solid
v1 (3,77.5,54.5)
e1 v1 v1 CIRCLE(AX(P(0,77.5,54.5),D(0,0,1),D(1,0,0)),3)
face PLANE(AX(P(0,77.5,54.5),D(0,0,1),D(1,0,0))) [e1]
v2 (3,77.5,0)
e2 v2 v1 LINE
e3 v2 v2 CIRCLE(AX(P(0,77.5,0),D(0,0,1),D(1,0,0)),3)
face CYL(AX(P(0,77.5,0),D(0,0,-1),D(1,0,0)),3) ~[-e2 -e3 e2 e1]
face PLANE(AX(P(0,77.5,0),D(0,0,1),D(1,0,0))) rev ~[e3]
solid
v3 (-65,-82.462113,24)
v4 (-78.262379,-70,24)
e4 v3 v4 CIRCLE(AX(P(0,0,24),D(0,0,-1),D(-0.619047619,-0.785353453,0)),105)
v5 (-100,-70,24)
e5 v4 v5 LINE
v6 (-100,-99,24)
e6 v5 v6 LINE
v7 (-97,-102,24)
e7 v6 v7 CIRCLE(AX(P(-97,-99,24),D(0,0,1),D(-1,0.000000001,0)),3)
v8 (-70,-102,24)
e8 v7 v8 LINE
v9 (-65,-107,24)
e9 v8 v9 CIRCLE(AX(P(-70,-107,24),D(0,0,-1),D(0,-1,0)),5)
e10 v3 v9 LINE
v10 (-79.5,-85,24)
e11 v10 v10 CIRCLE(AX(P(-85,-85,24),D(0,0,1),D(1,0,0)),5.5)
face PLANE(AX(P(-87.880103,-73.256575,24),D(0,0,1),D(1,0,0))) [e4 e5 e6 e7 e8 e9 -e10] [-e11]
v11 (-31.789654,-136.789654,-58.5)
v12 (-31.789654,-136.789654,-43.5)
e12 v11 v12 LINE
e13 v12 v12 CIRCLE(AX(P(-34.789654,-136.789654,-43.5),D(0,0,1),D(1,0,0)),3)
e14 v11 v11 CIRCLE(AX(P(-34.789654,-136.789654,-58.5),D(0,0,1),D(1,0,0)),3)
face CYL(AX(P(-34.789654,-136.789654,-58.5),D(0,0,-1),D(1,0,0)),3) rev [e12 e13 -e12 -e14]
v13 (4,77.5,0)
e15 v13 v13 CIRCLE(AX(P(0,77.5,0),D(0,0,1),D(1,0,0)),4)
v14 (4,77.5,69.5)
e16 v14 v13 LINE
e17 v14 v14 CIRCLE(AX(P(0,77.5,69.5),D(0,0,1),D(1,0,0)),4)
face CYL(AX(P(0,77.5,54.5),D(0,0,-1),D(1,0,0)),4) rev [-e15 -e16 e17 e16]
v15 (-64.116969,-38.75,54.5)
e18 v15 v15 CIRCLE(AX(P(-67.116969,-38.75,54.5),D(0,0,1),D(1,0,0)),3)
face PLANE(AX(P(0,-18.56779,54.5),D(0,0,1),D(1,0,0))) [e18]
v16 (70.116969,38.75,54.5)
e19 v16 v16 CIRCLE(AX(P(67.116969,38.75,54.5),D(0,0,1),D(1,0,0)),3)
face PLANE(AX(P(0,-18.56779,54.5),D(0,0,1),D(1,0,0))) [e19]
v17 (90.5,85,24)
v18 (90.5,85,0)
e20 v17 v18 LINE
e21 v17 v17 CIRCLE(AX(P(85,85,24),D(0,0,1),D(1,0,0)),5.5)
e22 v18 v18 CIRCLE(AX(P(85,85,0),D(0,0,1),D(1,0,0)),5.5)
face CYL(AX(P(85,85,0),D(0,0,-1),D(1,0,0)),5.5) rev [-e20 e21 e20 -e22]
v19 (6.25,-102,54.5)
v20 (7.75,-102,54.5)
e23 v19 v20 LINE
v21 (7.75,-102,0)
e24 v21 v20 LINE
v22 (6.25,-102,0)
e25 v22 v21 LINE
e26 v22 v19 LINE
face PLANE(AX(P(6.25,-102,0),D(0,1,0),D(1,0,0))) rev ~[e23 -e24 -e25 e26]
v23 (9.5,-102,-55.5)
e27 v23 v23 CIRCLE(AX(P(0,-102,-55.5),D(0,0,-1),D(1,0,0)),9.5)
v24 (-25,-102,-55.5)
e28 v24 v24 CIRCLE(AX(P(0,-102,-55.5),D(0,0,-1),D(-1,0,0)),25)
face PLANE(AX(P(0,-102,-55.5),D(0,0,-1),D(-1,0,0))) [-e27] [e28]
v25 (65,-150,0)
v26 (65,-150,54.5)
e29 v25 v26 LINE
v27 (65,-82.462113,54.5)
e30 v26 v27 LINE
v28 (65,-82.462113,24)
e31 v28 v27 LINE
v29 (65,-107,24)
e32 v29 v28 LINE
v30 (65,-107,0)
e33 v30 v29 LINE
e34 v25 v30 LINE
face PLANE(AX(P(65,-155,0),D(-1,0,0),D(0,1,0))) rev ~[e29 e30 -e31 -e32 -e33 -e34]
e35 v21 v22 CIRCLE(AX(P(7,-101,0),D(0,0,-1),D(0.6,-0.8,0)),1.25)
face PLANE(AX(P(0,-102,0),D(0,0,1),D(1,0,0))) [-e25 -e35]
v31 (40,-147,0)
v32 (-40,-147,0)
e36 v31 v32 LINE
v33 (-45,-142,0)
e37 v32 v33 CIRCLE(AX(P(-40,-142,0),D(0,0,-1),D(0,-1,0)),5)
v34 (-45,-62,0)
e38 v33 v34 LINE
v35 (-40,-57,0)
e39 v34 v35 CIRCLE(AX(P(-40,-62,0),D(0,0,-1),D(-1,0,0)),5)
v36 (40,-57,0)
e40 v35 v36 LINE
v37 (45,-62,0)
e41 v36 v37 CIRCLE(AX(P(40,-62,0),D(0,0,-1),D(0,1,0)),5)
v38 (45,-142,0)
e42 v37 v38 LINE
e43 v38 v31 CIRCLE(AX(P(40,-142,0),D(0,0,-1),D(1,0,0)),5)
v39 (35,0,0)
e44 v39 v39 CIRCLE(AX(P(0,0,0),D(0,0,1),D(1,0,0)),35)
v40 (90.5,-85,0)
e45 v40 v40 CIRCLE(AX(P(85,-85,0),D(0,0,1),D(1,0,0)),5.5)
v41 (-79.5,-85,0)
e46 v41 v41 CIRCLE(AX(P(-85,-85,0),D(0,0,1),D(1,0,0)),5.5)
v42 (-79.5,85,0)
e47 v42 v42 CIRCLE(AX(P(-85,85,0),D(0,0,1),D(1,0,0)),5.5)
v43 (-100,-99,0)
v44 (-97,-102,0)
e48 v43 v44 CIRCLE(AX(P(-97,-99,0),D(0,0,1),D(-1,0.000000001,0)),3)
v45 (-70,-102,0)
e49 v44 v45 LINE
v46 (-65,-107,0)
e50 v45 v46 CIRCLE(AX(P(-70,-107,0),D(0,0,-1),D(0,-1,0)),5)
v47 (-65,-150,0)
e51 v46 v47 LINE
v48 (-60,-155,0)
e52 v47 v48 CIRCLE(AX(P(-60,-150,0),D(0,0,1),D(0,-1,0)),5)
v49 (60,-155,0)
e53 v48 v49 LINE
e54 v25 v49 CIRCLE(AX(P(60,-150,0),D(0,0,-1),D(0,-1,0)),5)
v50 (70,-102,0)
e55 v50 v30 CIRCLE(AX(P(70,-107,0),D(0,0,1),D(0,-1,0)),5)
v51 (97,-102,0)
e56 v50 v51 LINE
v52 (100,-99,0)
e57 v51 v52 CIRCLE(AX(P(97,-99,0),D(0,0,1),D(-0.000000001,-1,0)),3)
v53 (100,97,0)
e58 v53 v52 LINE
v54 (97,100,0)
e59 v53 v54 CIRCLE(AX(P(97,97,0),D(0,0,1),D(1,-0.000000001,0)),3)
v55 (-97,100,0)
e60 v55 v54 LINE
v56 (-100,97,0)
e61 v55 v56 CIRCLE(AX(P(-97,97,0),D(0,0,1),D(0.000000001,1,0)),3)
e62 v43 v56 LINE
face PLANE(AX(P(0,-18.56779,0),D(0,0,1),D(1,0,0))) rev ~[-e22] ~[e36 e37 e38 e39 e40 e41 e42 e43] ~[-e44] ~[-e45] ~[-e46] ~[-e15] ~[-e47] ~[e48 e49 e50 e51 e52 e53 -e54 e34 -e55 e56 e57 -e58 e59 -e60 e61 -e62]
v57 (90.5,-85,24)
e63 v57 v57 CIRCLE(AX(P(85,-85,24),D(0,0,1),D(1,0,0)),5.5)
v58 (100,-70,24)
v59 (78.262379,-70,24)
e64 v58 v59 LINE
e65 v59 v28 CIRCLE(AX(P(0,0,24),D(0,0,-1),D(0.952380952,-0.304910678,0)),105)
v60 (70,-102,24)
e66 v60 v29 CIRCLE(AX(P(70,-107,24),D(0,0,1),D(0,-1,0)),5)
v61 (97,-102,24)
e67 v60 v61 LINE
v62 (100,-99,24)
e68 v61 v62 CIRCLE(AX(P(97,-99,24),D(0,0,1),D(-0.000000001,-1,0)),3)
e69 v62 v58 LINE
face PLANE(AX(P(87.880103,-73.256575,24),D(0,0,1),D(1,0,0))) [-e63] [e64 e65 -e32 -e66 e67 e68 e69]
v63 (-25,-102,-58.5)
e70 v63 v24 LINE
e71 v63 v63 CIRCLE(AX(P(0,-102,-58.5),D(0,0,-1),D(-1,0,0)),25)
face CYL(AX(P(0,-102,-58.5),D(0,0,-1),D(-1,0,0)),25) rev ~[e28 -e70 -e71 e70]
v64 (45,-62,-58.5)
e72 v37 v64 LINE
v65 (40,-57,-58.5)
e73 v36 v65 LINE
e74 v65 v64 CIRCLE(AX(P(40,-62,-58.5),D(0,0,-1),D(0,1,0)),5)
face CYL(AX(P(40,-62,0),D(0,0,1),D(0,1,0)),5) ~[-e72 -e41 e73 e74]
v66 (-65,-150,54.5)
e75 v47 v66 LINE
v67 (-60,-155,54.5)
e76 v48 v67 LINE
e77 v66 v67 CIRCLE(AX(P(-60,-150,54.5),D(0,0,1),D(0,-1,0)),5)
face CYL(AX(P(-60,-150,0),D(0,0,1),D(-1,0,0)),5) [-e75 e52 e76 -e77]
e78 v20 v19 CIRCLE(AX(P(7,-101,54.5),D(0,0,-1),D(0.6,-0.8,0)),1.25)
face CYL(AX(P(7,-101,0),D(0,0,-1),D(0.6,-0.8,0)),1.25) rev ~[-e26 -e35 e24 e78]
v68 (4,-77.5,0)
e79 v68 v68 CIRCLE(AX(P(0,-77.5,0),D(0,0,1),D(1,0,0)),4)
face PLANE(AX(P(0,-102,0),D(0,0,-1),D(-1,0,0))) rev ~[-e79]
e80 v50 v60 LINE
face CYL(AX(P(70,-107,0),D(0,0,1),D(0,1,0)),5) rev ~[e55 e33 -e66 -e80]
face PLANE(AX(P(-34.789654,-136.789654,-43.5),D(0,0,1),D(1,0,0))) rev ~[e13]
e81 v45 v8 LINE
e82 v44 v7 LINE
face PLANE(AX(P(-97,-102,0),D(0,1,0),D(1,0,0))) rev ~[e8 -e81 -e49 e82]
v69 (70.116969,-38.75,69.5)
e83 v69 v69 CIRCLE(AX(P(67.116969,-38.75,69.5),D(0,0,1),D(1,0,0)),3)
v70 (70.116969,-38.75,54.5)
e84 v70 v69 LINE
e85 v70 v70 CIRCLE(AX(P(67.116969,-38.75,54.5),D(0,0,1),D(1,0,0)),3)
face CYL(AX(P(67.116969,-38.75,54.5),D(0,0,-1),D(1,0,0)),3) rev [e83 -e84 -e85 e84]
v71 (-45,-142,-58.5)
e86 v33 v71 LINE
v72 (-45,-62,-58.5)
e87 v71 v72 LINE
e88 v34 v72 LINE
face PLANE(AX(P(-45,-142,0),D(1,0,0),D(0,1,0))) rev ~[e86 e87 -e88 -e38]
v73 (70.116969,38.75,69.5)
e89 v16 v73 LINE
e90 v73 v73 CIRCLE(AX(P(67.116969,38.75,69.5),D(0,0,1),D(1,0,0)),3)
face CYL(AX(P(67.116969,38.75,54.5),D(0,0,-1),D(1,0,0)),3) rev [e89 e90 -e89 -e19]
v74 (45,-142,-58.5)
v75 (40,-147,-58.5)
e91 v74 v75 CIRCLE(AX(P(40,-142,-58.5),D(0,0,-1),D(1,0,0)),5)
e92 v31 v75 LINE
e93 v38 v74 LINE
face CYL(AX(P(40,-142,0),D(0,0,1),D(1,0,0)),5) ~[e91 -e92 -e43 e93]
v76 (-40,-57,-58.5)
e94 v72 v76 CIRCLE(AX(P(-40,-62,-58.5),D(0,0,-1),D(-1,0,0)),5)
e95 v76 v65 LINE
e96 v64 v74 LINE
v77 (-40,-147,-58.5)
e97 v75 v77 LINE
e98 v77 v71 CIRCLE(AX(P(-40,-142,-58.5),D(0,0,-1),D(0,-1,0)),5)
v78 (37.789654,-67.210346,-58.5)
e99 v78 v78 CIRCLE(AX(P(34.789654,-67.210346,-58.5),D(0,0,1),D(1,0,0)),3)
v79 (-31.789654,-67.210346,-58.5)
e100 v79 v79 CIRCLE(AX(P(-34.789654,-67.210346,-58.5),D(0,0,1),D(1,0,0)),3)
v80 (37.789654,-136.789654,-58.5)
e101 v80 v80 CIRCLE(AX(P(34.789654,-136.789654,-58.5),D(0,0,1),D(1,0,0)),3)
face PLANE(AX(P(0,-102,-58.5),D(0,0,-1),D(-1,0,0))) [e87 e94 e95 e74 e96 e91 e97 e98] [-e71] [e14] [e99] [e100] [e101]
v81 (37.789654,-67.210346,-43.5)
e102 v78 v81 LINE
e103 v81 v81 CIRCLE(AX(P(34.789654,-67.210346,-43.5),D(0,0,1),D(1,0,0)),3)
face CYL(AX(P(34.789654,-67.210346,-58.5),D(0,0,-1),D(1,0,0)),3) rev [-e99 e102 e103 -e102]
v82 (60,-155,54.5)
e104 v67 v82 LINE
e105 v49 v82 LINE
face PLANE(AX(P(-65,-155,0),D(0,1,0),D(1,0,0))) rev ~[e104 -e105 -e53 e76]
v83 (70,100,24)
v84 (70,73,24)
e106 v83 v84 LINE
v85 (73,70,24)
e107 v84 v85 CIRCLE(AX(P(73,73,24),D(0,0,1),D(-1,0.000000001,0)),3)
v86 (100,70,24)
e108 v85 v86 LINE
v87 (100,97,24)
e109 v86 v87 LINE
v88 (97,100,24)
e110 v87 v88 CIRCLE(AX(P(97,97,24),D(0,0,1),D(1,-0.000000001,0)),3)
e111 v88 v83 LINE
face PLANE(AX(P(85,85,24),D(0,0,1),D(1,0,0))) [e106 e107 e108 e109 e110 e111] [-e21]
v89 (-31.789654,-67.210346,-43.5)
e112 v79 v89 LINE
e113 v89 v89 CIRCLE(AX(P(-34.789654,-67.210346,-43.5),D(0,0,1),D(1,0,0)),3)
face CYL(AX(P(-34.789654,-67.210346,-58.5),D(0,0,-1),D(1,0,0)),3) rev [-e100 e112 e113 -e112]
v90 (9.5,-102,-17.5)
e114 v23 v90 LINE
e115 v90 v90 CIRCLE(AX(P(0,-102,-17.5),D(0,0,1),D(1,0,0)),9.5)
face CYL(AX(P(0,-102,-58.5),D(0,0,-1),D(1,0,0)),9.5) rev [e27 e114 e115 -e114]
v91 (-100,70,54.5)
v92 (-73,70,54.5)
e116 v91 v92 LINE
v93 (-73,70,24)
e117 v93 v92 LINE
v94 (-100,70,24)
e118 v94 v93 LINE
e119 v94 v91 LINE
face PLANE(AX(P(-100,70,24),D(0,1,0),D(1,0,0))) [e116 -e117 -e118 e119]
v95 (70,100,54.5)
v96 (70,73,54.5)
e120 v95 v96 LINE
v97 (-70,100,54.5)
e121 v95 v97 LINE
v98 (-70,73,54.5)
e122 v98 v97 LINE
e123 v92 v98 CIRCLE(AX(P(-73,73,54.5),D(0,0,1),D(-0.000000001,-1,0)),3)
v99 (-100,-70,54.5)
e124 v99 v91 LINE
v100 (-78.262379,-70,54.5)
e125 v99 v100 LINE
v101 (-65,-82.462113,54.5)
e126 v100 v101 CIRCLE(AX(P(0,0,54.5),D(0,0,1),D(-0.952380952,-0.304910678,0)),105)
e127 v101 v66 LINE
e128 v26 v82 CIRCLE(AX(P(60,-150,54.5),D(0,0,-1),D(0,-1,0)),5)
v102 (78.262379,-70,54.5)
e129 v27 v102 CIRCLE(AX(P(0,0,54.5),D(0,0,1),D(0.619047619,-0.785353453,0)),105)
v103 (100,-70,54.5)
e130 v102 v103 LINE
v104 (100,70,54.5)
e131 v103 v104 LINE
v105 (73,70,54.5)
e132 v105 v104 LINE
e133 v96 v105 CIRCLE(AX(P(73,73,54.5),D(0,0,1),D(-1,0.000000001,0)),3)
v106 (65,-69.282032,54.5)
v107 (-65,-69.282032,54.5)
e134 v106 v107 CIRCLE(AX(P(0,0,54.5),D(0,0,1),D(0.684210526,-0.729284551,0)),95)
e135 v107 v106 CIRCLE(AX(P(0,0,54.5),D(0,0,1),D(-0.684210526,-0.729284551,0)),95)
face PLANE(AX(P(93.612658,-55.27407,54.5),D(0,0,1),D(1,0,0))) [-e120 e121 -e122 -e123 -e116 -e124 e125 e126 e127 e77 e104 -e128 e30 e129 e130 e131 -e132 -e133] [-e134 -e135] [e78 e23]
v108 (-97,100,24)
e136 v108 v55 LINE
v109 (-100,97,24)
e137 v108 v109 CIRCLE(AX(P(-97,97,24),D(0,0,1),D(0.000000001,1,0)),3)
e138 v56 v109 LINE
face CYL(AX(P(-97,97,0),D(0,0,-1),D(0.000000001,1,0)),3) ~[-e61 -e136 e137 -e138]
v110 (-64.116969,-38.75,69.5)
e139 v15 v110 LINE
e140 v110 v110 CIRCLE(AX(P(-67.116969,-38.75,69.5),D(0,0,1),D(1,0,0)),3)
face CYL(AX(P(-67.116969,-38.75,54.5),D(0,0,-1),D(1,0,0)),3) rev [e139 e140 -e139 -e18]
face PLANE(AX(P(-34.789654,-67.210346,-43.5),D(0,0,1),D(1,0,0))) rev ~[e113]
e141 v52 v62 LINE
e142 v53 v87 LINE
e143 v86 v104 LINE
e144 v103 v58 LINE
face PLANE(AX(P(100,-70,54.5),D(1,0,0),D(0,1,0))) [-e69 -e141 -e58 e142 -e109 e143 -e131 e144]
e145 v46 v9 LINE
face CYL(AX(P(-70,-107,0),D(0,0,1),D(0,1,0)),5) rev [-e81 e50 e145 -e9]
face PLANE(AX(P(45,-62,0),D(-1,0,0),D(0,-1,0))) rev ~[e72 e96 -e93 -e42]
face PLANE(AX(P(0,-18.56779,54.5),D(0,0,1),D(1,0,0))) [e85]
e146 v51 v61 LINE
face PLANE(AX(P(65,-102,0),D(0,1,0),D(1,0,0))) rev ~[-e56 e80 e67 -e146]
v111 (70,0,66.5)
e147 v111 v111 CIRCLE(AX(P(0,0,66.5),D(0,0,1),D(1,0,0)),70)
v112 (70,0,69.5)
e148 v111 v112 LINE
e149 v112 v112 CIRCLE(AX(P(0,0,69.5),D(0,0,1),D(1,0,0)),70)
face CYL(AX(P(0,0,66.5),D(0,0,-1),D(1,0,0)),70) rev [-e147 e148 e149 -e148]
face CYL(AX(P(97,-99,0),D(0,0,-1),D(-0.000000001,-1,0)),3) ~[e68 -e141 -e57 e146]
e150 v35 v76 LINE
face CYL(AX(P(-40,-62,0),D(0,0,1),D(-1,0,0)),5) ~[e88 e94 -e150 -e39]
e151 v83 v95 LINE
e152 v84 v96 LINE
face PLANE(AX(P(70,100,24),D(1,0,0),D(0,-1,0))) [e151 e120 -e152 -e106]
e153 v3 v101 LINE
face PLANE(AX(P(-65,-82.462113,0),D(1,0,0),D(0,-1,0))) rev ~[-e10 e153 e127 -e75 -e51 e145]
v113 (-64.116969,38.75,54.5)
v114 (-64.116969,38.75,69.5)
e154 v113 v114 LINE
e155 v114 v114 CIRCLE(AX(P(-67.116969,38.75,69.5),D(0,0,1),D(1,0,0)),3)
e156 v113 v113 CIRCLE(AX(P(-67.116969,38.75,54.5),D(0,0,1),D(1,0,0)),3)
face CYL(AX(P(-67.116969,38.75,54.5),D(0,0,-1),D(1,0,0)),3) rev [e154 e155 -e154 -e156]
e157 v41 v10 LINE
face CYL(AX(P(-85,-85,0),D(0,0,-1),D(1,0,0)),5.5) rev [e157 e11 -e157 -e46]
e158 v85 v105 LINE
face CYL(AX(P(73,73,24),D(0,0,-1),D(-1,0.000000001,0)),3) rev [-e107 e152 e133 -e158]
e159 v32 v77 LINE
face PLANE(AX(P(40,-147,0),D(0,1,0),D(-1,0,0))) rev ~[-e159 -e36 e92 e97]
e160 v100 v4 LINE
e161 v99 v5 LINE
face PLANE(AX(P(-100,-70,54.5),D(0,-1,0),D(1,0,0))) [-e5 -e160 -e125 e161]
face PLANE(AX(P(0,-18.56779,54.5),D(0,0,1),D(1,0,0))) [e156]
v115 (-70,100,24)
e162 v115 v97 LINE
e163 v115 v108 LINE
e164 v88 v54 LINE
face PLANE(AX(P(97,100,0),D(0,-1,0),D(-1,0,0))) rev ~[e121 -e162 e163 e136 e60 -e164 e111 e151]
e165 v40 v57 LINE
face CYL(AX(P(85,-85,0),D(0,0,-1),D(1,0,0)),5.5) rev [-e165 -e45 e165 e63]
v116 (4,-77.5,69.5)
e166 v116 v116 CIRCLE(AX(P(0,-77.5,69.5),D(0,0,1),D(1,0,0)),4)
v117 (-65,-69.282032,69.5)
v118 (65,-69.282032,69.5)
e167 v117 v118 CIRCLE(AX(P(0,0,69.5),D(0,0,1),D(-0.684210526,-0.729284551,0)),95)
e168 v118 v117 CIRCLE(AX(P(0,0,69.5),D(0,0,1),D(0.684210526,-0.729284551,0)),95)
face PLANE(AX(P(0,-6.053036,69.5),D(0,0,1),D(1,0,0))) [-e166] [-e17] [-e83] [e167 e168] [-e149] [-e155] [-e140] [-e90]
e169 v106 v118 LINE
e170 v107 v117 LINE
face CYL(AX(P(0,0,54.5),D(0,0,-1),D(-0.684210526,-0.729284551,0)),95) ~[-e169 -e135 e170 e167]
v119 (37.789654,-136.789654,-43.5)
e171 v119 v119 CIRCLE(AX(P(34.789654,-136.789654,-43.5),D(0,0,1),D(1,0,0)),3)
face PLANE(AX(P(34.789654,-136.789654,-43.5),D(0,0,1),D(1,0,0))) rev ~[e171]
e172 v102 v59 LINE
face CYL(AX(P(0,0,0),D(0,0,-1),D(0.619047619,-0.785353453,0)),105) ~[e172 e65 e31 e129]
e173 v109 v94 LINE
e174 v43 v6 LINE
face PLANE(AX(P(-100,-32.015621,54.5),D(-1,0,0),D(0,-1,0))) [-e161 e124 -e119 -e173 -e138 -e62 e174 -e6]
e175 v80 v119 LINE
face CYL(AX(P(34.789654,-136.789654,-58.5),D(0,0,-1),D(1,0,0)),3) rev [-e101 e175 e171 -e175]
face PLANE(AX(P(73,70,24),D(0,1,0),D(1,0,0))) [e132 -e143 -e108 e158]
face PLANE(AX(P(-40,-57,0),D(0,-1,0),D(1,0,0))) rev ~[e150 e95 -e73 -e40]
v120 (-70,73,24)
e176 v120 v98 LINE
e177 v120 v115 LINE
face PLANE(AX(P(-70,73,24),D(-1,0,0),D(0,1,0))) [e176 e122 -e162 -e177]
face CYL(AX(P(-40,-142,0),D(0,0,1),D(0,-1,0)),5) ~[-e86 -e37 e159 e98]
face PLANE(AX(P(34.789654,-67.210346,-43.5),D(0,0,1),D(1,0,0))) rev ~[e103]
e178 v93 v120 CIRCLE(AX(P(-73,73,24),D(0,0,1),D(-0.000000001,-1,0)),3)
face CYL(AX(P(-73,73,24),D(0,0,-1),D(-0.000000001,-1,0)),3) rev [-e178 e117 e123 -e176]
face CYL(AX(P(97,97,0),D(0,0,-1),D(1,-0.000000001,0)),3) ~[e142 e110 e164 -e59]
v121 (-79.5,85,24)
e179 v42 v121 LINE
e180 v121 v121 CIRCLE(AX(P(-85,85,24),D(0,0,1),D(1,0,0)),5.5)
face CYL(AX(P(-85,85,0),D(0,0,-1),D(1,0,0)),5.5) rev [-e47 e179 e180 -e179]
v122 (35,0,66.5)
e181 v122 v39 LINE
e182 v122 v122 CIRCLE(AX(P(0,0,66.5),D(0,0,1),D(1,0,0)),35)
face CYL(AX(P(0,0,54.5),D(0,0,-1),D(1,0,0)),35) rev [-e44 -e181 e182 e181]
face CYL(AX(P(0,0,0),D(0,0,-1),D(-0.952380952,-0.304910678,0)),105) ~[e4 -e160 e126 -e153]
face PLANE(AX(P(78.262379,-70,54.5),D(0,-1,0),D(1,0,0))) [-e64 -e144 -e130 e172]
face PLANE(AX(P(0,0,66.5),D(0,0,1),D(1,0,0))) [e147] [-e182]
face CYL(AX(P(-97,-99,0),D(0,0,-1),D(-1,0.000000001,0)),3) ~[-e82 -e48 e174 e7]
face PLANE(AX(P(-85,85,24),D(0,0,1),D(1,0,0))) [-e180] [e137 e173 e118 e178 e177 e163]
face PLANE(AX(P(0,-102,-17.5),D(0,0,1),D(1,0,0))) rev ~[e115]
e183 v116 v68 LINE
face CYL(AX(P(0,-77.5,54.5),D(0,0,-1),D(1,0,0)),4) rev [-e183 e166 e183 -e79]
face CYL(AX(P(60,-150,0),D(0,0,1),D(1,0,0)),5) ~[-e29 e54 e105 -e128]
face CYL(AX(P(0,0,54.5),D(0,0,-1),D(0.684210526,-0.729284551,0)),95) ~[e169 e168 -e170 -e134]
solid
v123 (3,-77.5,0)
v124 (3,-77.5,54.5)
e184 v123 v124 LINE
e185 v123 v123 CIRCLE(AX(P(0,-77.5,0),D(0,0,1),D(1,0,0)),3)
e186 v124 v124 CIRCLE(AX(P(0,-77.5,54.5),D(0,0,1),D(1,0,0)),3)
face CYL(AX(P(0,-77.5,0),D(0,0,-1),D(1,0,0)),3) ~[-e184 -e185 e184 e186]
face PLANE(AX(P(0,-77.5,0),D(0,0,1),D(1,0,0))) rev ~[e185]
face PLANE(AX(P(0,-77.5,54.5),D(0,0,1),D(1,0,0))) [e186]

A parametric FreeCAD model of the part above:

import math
import FreeCAD as App
import Part
import Sketcher

V = App.Vector


def edges_at(feature, points):
    """Names of the edges that pass closest to the given points."""
    edges = feature.Shape.Edges
    near = lambda p: min(range(len(edges)), key=lambda i: edges[i].distToShape(Part.Vertex(*p))[0])
    return sorted({f"Edge{near(p) + 1}" for p in points})

doc = App.newDocument("Part")
body = doc.addObject("PartDesign::Body", "Body")

sketch1 = doc.addObject("Sketcher::SketchObject", "Sketch")
body.addObject(sketch1)
sketch1.AttachmentSupport = (doc.XY_Plane, [""])
sketch1.MapMode = "FlatFace"
sketch1.addGeometry([
    Part.ArcOfCircle(Part.Circle(V(-97, 97, 0), V(0, 0, 1), 3), math.radians(90), math.radians(180)),
    Part.LineSegment(V(-100, 97, 0), V(-100, -32.015621, 0)),
    Part.ArcOfCircle(Part.Circle(V(0, 0, 0), V(0, 0, 1), 105), math.radians(-162.24721), math.radians(-128.24662)),
    Part.LineSegment(V(-65, -82.462113, 0), V(-65, -155, 0)),
    Part.LineSegment(V(-65, -155, 0), V(65, -155, 0)),
    Part.LineSegment(V(65, -155, 0), V(65, -82.462113, 0)),
    Part.ArcOfCircle(Part.Circle(V(0, 0, 0), V(0, 0, 1), 105), math.radians(-51.75338), math.radians(-17.75279)),
    Part.LineSegment(V(100, -32.015621, 0), V(100, 97, 0)),
    Part.ArcOfCircle(Part.Circle(V(97, 97, 0), V(0, 0, 1), 3), math.radians(0), math.radians(90)),
    Part.LineSegment(V(97, 100, 0), V(-97, 100, 0)),
    Part.LineSegment(V(6.25, -102, 0), V(7.75, -102, 0)),
    Part.ArcOfCircle(Part.Circle(V(7, -101, 0), V(0, 0, 1), 1.25), math.radians(-126.869898), math.radians(-53.130102)),
    Part.Circle(V(0, -77.5, 0), V(0, 0, 1), 4),
    Part.Circle(V(-85, 85, 0), V(0, 0, 1), 5.5),
    Part.Circle(V(0, 0, 0), V(0, 0, 1), 35),
    Part.Circle(V(0, 77.5, 0), V(0, 0, 1), 4),
    Part.Circle(V(85, 85, 0), V(0, 0, 1), 5.5),
], False)
sketch1.addConstraint([
    Sketcher.Constraint("Tangent", 0, 2, 1, 1),
    Sketcher.Constraint("Coincident", 1, 2, 2, 1),
    Sketcher.Constraint("Coincident", 2, 2, 3, 1),
    Sketcher.Constraint("Coincident", 3, 2, 4, 1),
    Sketcher.Constraint("Coincident", 4, 2, 5, 1),
    Sketcher.Constraint("Coincident", 5, 2, 6, 1),
    Sketcher.Constraint("Coincident", 6, 2, 7, 1),
    Sketcher.Constraint("Tangent", 7, 2, 8, 1),
    Sketcher.Constraint("Tangent", 8, 2, 9, 1),
    Sketcher.Constraint("Tangent", 9, 2, 0, 1),
    Sketcher.Constraint("Coincident", 10, 1, 11, 1),
    Sketcher.Constraint("Coincident", 11, 2, 10, 2),
    Sketcher.Constraint("Vertical", 1),
    Sketcher.Constraint("Vertical", 3),
    Sketcher.Constraint("Horizontal", 4),
    Sketcher.Constraint("Vertical", 5),
    Sketcher.Constraint("Vertical", 7),
    Sketcher.Constraint("Horizontal", 9),
    Sketcher.Constraint("Horizontal", 10),
    Sketcher.Constraint("Coincident", 2, 3, -1, 1),
    Sketcher.Constraint("Coincident", 6, 3, -1, 1),
    Sketcher.Constraint("Coincident", 14, 3, -1, 1),
    Sketcher.Constraint("Equal", 2, 6),
    Sketcher.Constraint("Equal", 0, 8),
    Sketcher.Constraint("Equal", 12, 15),
    Sketcher.Constraint("Equal", 13, 16),
    Sketcher.Constraint("Symmetric", 12, 3, 15, 3, -1, 1),
    Sketcher.Constraint("Symmetric", 13, 3, 16, 3, -2),
    Sketcher.Constraint("PointOnObject", 12, 3, -2),
    Sketcher.Constraint("Horizontal", 2, 2, 5, 2),
    Sketcher.Constraint("Horizontal", 1, 2, 6, 2),
    Sketcher.Constraint("Diameter", 12, 8.0),
    Sketcher.Constraint("Diameter", 13, 11.0),
    Sketcher.Constraint("Diameter", 14, 70.0),
    Sketcher.Constraint("Radius", 0, 3.0),
    Sketcher.Constraint("Radius", 2, 105.0),
    Sketcher.Constraint("DistanceX", 4, 1, 4, 2, 130.0),
    Sketcher.Constraint("DistanceX", 9, 2, 9, 1, 194.0),
    Sketcher.Constraint("Radius", 11, 1.25),
    Sketcher.Constraint("DistanceX", 10, 1, 10, 2, 1.5),
    Sketcher.Constraint("DistanceY", -1, 1, 0, 3, 97.0),
    Sketcher.Constraint("DistanceX", -1, 1, 11, 3, 7.0),
    Sketcher.Constraint("DistanceY", 11, 3, -1, 1, 101.0),
    Sketcher.Constraint("DistanceX", 13, 3, -1, 1, 85.0),
    Sketcher.Constraint("DistanceY", -1, 1, 13, 3, 85.0),
    Sketcher.Constraint("DistanceY", 3, 2, -1, 1, 155.0),
    Sketcher.Constraint("DistanceY", 12, 3, -1, 1, 77.5),
])
pad1 = doc.addObject("PartDesign::Pad", "Pad")
body.addObject(pad1)
pad1.Profile = sketch1
pad1.Length = 54.5

sketch2 = doc.addObject("Sketcher::SketchObject", "Sketch001")
body.addObject(sketch2)
sketch2.AttachmentSupport = (doc.XY_Plane, [""])
sketch2.MapMode = "FlatFace"
sketch2.addGeometry([
    Part.ArcOfCircle(Part.Circle(V(-97, 97, 0), V(0, 0, 1), 3), math.radians(90), math.radians(180)),
    Part.LineSegment(V(-100, 97, 0), V(-100, 32.015621, 0)),
    Part.ArcOfCircle(Part.Circle(V(0, 0, 0), V(0, 0, 1), 105), math.radians(107.75279), math.radians(162.24721)),
    Part.LineSegment(V(-32.015621, 100, 0), V(-97, 100, 0)),
    Part.Circle(V(-85, 85, 0), V(0, 0, 1), 5.5),
    Part.LineSegment(V(97, 100, 0), V(32.015621, 100, 0)),
    Part.ArcOfCircle(Part.Circle(V(0, 0, 0), V(0, 0, 1), 105), math.radians(17.75279), math.radians(72.24721)),
    Part.LineSegment(V(100, 32.015621, 0), V(100, 97, 0)),
    Part.ArcOfCircle(Part.Circle(V(97, 97, 0), V(0, 0, 1), 3), math.radians(0), math.radians(90)),
    Part.Circle(V(85, 85, 0), V(0, 0, 1), 5.5),
    Part.ArcOfCircle(Part.Circle(V(0, 0, 0), V(0, 0, 1), 105), math.radians(-162.24721), math.radians(-128.24662)),
    Part.LineSegment(V(-100, -32.015621, 0), V(-100, -99, 0)),
    Part.ArcOfCircle(Part.Circle(V(-97, -99, 0), V(0, 0, 1), 3), math.radians(180), math.radians(270)),
    Part.LineSegment(V(-97, -102, 0), V(-65, -102, 0)),
    Part.LineSegment(V(-65, -102, 0), V(-65, -82.462113, 0)),
    Part.Circle(V(-85, -85, 0), V(0, 0, 1), 5.5),
    Part.LineSegment(V(100, -99, 0), V(100, -32.015621, 0)),
    Part.ArcOfCircle(Part.Circle(V(0, 0, 0), V(0, 0, 1), 105), math.radians(-51.75338), math.radians(-17.75279)),
    Part.LineSegment(V(65, -82.462113, 0), V(65, -102, 0)),
    Part.LineSegment(V(65, -102, 0), V(97, -102, 0)),
    Part.ArcOfCircle(Part.Circle(V(97, -99, 0), V(0, 0, 1), 3), math.radians(-90), math.radians(0)),
    Part.Circle(V(85, -85, 0), V(0, 0, 1), 5.5),
], False)
sketch2.addConstraint([
    Sketcher.Constraint("Tangent", 0, 2, 1, 1),
    Sketcher.Constraint("Coincident", 1, 2, 2, 2),
    Sketcher.Constraint("Coincident", 2, 1, 3, 1),
    Sketcher.Constraint("Tangent", 3, 2, 0, 1),
    Sketcher.Constraint("Coincident", 5, 2, 6, 2),
    Sketcher.Constraint("Coincident", 6, 1, 7, 1),
    Sketcher.Constraint("Tangent", 7, 2, 8, 1),
    Sketcher.Constraint("Tangent", 8, 2, 5, 1),
    Sketcher.Constraint("Coincident", 10, 1, 11, 1),
    Sketcher.Constraint("Tangent", 11, 2, 12, 1),
    Sketcher.Constraint("Tangent", 12, 2, 13, 1),
    Sketcher.Constraint("Coincident", 13, 2, 14, 1),
    Sketcher.Constraint("Coincident", 14, 2, 10, 2),
    Sketcher.Constraint("Coincident", 16, 2, 17, 2),
    Sketcher.Constraint("Coincident", 17, 1, 18, 1),
    Sketcher.Constraint("Coincident", 18, 2, 19, 1),
    Sketcher.Constraint("Tangent", 19, 2, 20, 1),
    Sketcher.Constraint("Tangent", 20, 2, 16, 1),
    Sketcher.Constraint("Vertical", 1),
    Sketcher.Constraint("Horizontal", 3),
    Sketcher.Constraint("Horizontal", 5),
    Sketcher.Constraint("Vertical", 7),
    Sketcher.Constraint("Vertical", 11),
    Sketcher.Constraint("Horizontal", 13),
    Sketcher.Constraint("Vertical", 14),
    Sketcher.Constraint("Vertical", 16),
    Sketcher.Constraint("Vertical", 18),
    Sketcher.Constraint("Horizontal", 19),
    Sketcher.Constraint("Coincident", 2, 3, -1, 1),
    Sketcher.Constraint("Coincident", 6, 3, -1, 1),
    Sketcher.Constraint("Coincident", 10, 3, -1, 1),
    Sketcher.Constraint("Coincident", 17, 3, -1, 1),
    Sketcher.Constraint("Equal", 2, 6),
    Sketcher.Constraint("Equal", 0, 8),
    Sketcher.Constraint("Equal", 4, 9),
    Sketcher.Constraint("Equal", 6, 10),
    Sketcher.Constraint("Equal", 8, 12),
    Sketcher.Constraint("Equal", 9, 15),
    Sketcher.Constraint("Equal", 10, 17),
    Sketcher.Constraint("Equal", 12, 20),
    Sketcher.Constraint("Equal", 15, 21),
    Sketcher.Constraint("Symmetric", 9, 3, 15, 3, -1, 1),
    Sketcher.Constraint("Symmetric", 4, 3, 21, 3, -1, 1),
    Sketcher.Constraint("Symmetric", 0, 3, 8, 3, -2),
    Sketcher.Constraint("Symmetric", 4, 3, 9, 3, -2),
    Sketcher.Constraint("Symmetric", 12, 3, 20, 3, -2),
    Sketcher.Constraint("Horizontal", 14, 2, 17, 1),
    Sketcher.Constraint("Vertical", 0, 3, 12, 3),
    Sketcher.Constraint("Equal", 5, 1),
    Sketcher.Constraint("Diameter", 4, 11.0),
    Sketcher.Constraint("Radius", 0, 3.0),
    Sketcher.Constraint("Radius", 2, 105.0),
    Sketcher.Constraint("DistanceX", 13, 1, 13, 2, 32.0),
    Sketcher.Constraint("DistanceX", 0, 3, -1, 1, 97.0),
    Sketcher.Constraint("DistanceX", 4, 3, -1, 1, 85.0),
    Sketcher.Constraint("DistanceY", -1, 1, 4, 3, 85.0),
    Sketcher.Constraint("DistanceY", 12, 3, -1, 1, 99.0),
])
pad2 = doc.addObject("PartDesign::Pad", "Pad001")
body.addObject(pad2)
pad2.Profile = sketch2
pad2.Length = 24

sketch3 = doc.addObject("Sketcher::SketchObject", "Sketch002")
body.addObject(sketch3)
sketch3.AttachmentSupport = (doc.XY_Plane, [""])
sketch3.MapMode = "FlatFace"
sketch3.AttachmentOffset = App.Placement(V(0, 0, 54.5), App.Rotation())
sketch3.addGeometry([
    Part.ArcOfCircle(Part.Circle(V(0, 0, 0), V(0, 0, 1), 95), math.radians(-133.173551), math.radians(-46.826449)),
    Part.ArcOfCircle(Part.Circle(V(0, 0, 0), V(0, 0, 1), 95), math.radians(-46.826449), math.radians(226.826449)),
    Part.Circle(V(-67.116969, -38.75, 0), V(0, 0, 1), 3),
    Part.Circle(V(0, -77.5, 0), V(0, 0, 1), 4),
    Part.Circle(V(67.116969, -38.75, 0), V(0, 0, 1), 3),
    Part.Circle(V(-67.116969, 38.75, 0), V(0, 0, 1), 3),
    Part.Circle(V(0, 0, 0), V(0, 0, 1), 35),
    Part.Circle(V(67.116969, 38.75, 0), V(0, 0, 1), 3),
    Part.Circle(V(0, 77.5, 0), V(0, 0, 1), 4),
], False)
sketch3.addConstraint([
    Sketcher.Constraint("Tangent", 0, 1, 1, 2),
    Sketcher.Constraint("Coincident", 1, 1, 0, 2),
    Sketcher.Constraint("Coincident", 0, 3, -1, 1),
    Sketcher.Constraint("Coincident", 6, 3, -1, 1),
    Sketcher.Constraint("Equal", 2, 4),
    Sketcher.Constraint("Equal", 4, 5),
    Sketcher.Constraint("Equal", 5, 7),
    Sketcher.Constraint("Equal", 3, 8),
    Sketcher.Constraint("Symmetric", 4, 3, 5, 3, -1, 1),
    Sketcher.Constraint("Symmetric", 2, 3, 7, 3, -1, 1),
    Sketcher.Constraint("Symmetric", 3, 3, 8, 3, -1, 1),
    Sketcher.Constraint("Symmetric", 2, 3, 4, 3, -2),
    Sketcher.Constraint("PointOnObject", 3, 3, -2),
    Sketcher.Constraint("Horizontal", 0, 1, 1, 1),
    Sketcher.Constraint("Diameter", 2, 6.0),
    Sketcher.Constraint("Diameter", 3, 8.0),
    Sketcher.Constraint("Diameter", 6, 70.0),
    Sketcher.Constraint("Radius", 0, 95.0),
    Sketcher.Constraint("DistanceX", 0, 1, -1, 1, 65.0),
    Sketcher.Constraint("DistanceY", 3, 3, -1, 1, 77.5),
    Sketcher.Constraint("DistanceY", 2, 3, 5, 3, 77.5),
    Sketcher.Constraint("DistanceX", 2, 3, -1, 1, 67.116969),
])
pad3 = doc.addObject("PartDesign::Pad", "Pad002")
body.addObject(pad3)
pad3.Profile = sketch3
pad3.Length = 15

sketch4 = doc.addObject("Sketcher::SketchObject", "Sketch003")
body.addObject(sketch4)
sketch4.AttachmentSupport = (doc.XY_Plane, [""])
sketch4.MapMode = "FlatFace"
sketch4.AttachmentOffset = App.Placement(V(0, 0, 66.5), App.Rotation())
sketch4.addGeometry([
    Part.Circle(V(0, 0, 0), V(0, 0, 1), 70),
    Part.Circle(V(0, 0, 0), V(0, 0, 1), 35),
], False)
sketch4.addConstraint([
    Sketcher.Constraint("Coincident", 0, 3, -1, 1),
    Sketcher.Constraint("Coincident", 1, 3, -1, 1),
    Sketcher.Constraint("Diameter", 0, 140.0),
    Sketcher.Constraint("Diameter", 1, 70.0),
])
pocket1 = doc.addObject("PartDesign::Pocket", "Pocket")
body.addObject(pocket1)
pocket1.Profile = sketch4
pocket1.Length = 3
pocket1.Reversed = True

sketch5 = doc.addObject("Sketcher::SketchObject", "Sketch004")
body.addObject(sketch5)
sketch5.AttachmentSupport = (doc.XY_Plane, [""])
sketch5.MapMode = "FlatFace"
sketch5.addGeometry([
    Part.ArcOfCircle(Part.Circle(V(40, -62, 0), V(0, 0, 1), 5), math.radians(0), math.radians(90)),
    Part.LineSegment(V(40, -57, 0), V(-40, -57, 0)),
    Part.ArcOfCircle(Part.Circle(V(-40, -62, 0), V(0, 0, 1), 5), math.radians(90), math.radians(180)),
    Part.LineSegment(V(-45, -62, 0), V(-45, -142, 0)),
    Part.ArcOfCircle(Part.Circle(V(-40, -142, 0), V(0, 0, 1), 5), math.radians(180), math.radians(270)),
    Part.LineSegment(V(-40, -147, 0), V(40, -147, 0)),
    Part.ArcOfCircle(Part.Circle(V(40, -142, 0), V(0, 0, 1), 5), math.radians(-90), math.radians(0)),
    Part.LineSegment(V(45, -142, 0), V(45, -62, 0)),
], False)
sketch5.addConstraint([
    Sketcher.Constraint("Tangent", 0, 2, 1, 1),
    Sketcher.Constraint("Tangent", 1, 2, 2, 1),
    Sketcher.Constraint("Tangent", 2, 2, 3, 1),
    Sketcher.Constraint("Tangent", 3, 2, 4, 1),
    Sketcher.Constraint("Tangent", 4, 2, 5, 1),
    Sketcher.Constraint("Tangent", 5, 2, 6, 1),
    Sketcher.Constraint("Tangent", 6, 2, 7, 1),
    Sketcher.Constraint("Tangent", 7, 2, 0, 1),
    Sketcher.Constraint("Horizontal", 1),
    Sketcher.Constraint("Vertical", 3),
    Sketcher.Constraint("Horizontal", 5),
    Sketcher.Constraint("Vertical", 7),
    Sketcher.Constraint("Equal", 0, 2),
    Sketcher.Constraint("Equal", 2, 4),
    Sketcher.Constraint("Equal", 4, 6),
    Sketcher.Constraint("Equal", 5, 3),
    Sketcher.Constraint("Radius", 0, 5.0),
    Sketcher.Constraint("DistanceX", 1, 2, 1, 1, 80.0),
    Sketcher.Constraint("DistanceX", -1, 1, 0, 3, 40.0),
    Sketcher.Constraint("DistanceY", 0, 3, -1, 1, 62.0),
])
pad4 = doc.addObject("PartDesign::Pad", "Pad003")
body.addObject(pad4)
pad4.Profile = sketch5
pad4.Length = 58.5
pad4.Reversed = True

sketch6 = doc.addObject("Sketcher::SketchObject", "Sketch005")
body.addObject(sketch6)
sketch6.AttachmentSupport = (doc.XY_Plane, [""])
sketch6.MapMode = "FlatFace"
sketch6.AttachmentOffset = App.Placement(V(0, 0, -58.5), App.Rotation())
sketch6.addGeometry(Part.Circle(V(0, -102, 0), V(0, 0, 1), 9.5), False)
sketch6.addConstraint([
    Sketcher.Constraint("PointOnObject", 0, 3, -2),
    Sketcher.Constraint("Diameter", 0, 19.0),
    Sketcher.Constraint("DistanceY", 0, 3, -1, 1, 102.0),
])
pocket2 = doc.addObject("PartDesign::Pocket", "Pocket001")
body.addObject(pocket2)
pocket2.Profile = sketch6
pocket2.Length = 41
pocket2.Reversed = True

sketch7 = doc.addObject("Sketcher::SketchObject", "Sketch006")
body.addObject(sketch7)
sketch7.AttachmentSupport = (doc.XY_Plane, [""])
sketch7.MapMode = "FlatFace"
sketch7.AttachmentOffset = App.Placement(V(0, 0, -58.5), App.Rotation())
sketch7.addGeometry([
    Part.Circle(V(34.789654, -67.210346, 0), V(0, 0, 1), 3),
    Part.Circle(V(-34.789654, -67.210346, 0), V(0, 0, 1), 3),
    Part.Circle(V(34.789654, -136.789654, 0), V(0, 0, 1), 3),
    Part.Circle(V(-34.789654, -136.789654, 0), V(0, 0, 1), 3),
], False)
sketch7.addConstraint([
    Sketcher.Constraint("Equal", 0, 1),
    Sketcher.Constraint("Equal", 1, 2),
    Sketcher.Constraint("Equal", 2, 3),
    Sketcher.Constraint("Symmetric", 0, 3, 1, 3, -2),
    Sketcher.Constraint("Symmetric", 2, 3, 3, 3, -2),
    Sketcher.Constraint("Vertical", 0, 3, 2, 3),
    Sketcher.Constraint("Diameter", 0, 6.0),
    Sketcher.Constraint("DistanceX", -1, 1, 0, 3, 34.789654),
    Sketcher.Constraint("DistanceY", 0, 3, -1, 1, 67.210346),
    Sketcher.Constraint("DistanceY", 2, 3, -1, 1, 136.789654),
])
pocket3 = doc.addObject("PartDesign::Pocket", "Pocket002")
body.addObject(pocket3)
pocket3.Profile = sketch7
pocket3.Length = 15
pocket3.Reversed = True
doc.recompute()

fillet = doc.addObject("PartDesign::Fillet", "Fillet")
body.addObject(fillet)
fillet.Base = (pocket3, edges_at(pocket3, [
    (65, -102, 12),
    (-65, -155, 27.25),
    (65, -155, 27.25),
    (-65, -102, 12),
]))
fillet.Radius = 5

sketch8 = doc.addObject("Sketcher::SketchObject", "Sketch007")
body.addObject(sketch8)
sketch8.AttachmentSupport = (doc.XY_Plane, [""])
sketch8.MapMode = "FlatFace"
sketch8.AttachmentOffset = App.Placement(V(0, 0, -58.5), App.Rotation())
sketch8.addGeometry(Part.Circle(V(0, -102, 0), V(0, 0, 1), 25), False)
sketch8.addConstraint([
    Sketcher.Constraint("PointOnObject", 0, 3, -2),
    Sketcher.Constraint("Diameter", 0, 50.0),
    Sketcher.Constraint("DistanceY", 0, 3, -1, 1, 102.0),
])
pocket4 = doc.addObject("PartDesign::Pocket", "Pocket003")
body.addObject(pocket4)
pocket4.Profile = sketch8
pocket4.Length = 3
pocket4.Reversed = True

sketch9 = doc.addObject("Sketcher::SketchObject", "Sketch008")
body.addObject(sketch9)
sketch9.AttachmentSupport = (doc.XY_Plane, [""])
sketch9.MapMode = "FlatFace"
sketch9.AttachmentOffset = App.Placement(V(0, 0, 54.5), App.Rotation())
sketch9.addGeometry([
    Part.LineSegment(V(-100, -32.015621, 0), V(-100, -70, 0)),
    Part.LineSegment(V(-100, -70, 0), V(-78.262379, -70, 0)),
    Part.ArcOfCircle(Part.Circle(V(0, 0, 0), V(0, 0, 1), 105), math.radians(-162.24721), math.radians(-138.189685)),
], False)
sketch9.addConstraint([
    Sketcher.Constraint("Coincident", 0, 2, 1, 1),
    Sketcher.Constraint("Coincident", 1, 2, 2, 2),
    Sketcher.Constraint("Coincident", 2, 1, 0, 1),
    Sketcher.Constraint("Vertical", 0),
    Sketcher.Constraint("Horizontal", 1),
    Sketcher.Constraint("Coincident", 2, 3, -1, 1),
    Sketcher.Constraint("Radius", 2, 105.0),
    Sketcher.Constraint("DistanceX", 0, 2, -1, 1, 100.0),
    Sketcher.Constraint("DistanceY", 0, 2, -1, 1, 70.0),
])
pad5 = doc.addObject("PartDesign::Pad", "Pad004")
body.addObject(pad5)
pad5.Profile = sketch9
pad5.Type = "UpToFirst"
pad5.Reversed = True

sketch10 = doc.addObject("Sketcher::SketchObject", "Sketch009")
body.addObject(sketch10)
sketch10.AttachmentSupport = (doc.XY_Plane, [""])
sketch10.MapMode = "FlatFace"
sketch10.AttachmentOffset = App.Placement(V(0, 0, 54.5), App.Rotation())
sketch10.addGeometry([
    Part.ArcOfCircle(Part.Circle(V(0, 0, 0), V(0, 0, 1), 105), math.radians(-41.810315), math.radians(-17.75279)),
    Part.LineSegment(V(78.262379, -70, 0), V(100, -70, 0)),
    Part.LineSegment(V(100, -70, 0), V(100, -32.015621, 0)),
], False)
sketch10.addConstraint([
    Sketcher.Constraint("Coincident", 0, 1, 1, 1),
    Sketcher.Constraint("Coincident", 1, 2, 2, 1),
    Sketcher.Constraint("Coincident", 2, 2, 0, 2),
    Sketcher.Constraint("Horizontal", 1),
    Sketcher.Constraint("Vertical", 2),
    Sketcher.Constraint("Coincident", 0, 3, -1, 1),
    Sketcher.Constraint("Radius", 0, 105.0),
    Sketcher.Constraint("DistanceY", 0, 1, -1, 1, 70.0),
    Sketcher.Constraint("DistanceX", -1, 1, 1, 2, 100.0),
])
pad6 = doc.addObject("PartDesign::Pad", "Pad005")
body.addObject(pad6)
pad6.Profile = sketch10
pad6.Type = "UpToFirst"
pad6.Reversed = True

sketch11 = doc.addObject("Sketcher::SketchObject", "Sketch010")
body.addObject(sketch11)
sketch11.AttachmentSupport = (doc.XY_Plane, [""])
sketch11.MapMode = "FlatFace"
sketch11.AttachmentOffset = App.Placement(V(0, 0, 24), App.Rotation())
sketch11.addGeometry([
    Part.LineSegment(V(-100, 70, 0), V(-73, 70, 0)),
    Part.ArcOfCircle(Part.Circle(V(-73, 73, 0), V(0, 0, 1), 3), math.radians(-90), math.radians(0)),
    Part.LineSegment(V(-70, 73, 0), V(-70, 100, 0)),
    Part.LineSegment(V(-70, 100, 0), V(-97, 100, 0)),
    Part.ArcOfCircle(Part.Circle(V(-97, 97, 0), V(0, 0, 1), 3), math.radians(90), math.radians(180)),
    Part.LineSegment(V(-100, 97, 0), V(-100, 70, 0)),
    Part.Circle(V(-85, 85, 0), V(0, 0, 1), 5.5),
    Part.LineSegment(V(97, 100, 0), V(70, 100, 0)),
    Part.LineSegment(V(70, 100, 0), V(70, 73, 0)),
    Part.ArcOfCircle(Part.Circle(V(73, 73, 0), V(0, 0, 1), 3), math.radians(180), math.radians(270)),
    Part.LineSegment(V(73, 70, 0), V(100, 70, 0)),
    Part.LineSegment(V(100, 70, 0), V(100, 97, 0)),
    Part.ArcOfCircle(Part.Circle(V(97, 97, 0), V(0, 0, 1), 3), math.radians(0), math.radians(90)),
    Part.Circle(V(85, 85, 0), V(0, 0, 1), 5.5),
], False)
sketch11.addConstraint([
    Sketcher.Constraint("Tangent", 0, 2, 1, 1),
    Sketcher.Constraint("Tangent", 1, 2, 2, 1),
    Sketcher.Constraint("Coincident", 2, 2, 3, 1),
    Sketcher.Constraint("Tangent", 3, 2, 4, 1),
    Sketcher.Constraint("Tangent", 4, 2, 5, 1),
    Sketcher.Constraint("Coincident", 5, 2, 0, 1),
    Sketcher.Constraint("Coincident", 7, 2, 8, 1),
    Sketcher.Constraint("Tangent", 8, 2, 9, 1),
    Sketcher.Constraint("Tangent", 9, 2, 10, 1),
    Sketcher.Constraint("Coincident", 10, 2, 11, 1),
    Sketcher.Constraint("Tangent", 11, 2, 12, 1),
    Sketcher.Constraint("Tangent", 12, 2, 7, 1),
    Sketcher.Constraint("Horizontal", 0),
    Sketcher.Constraint("Vertical", 2),
    Sketcher.Constraint("Horizontal", 3),
    Sketcher.Constraint("Vertical", 5),
    Sketcher.Constraint("Horizontal", 7),
    Sketcher.Constraint("Vertical", 8),
    Sketcher.Constraint("Horizontal", 10),
    Sketcher.Constraint("Vertical", 11),
    Sketcher.Constraint("Equal", 1, 4),
    Sketcher.Constraint("Equal", 4, 9),
    Sketcher.Constraint("Equal", 9, 12),
    Sketcher.Constraint("Equal", 6, 13),
    Sketcher.Constraint("Symmetric", 1, 3, 9, 3, -2),
    Sketcher.Constraint("Symmetric", 4, 3, 12, 3, -2),
    Sketcher.Constraint("Symmetric", 6, 3, 13, 3, -2),
    Sketcher.Constraint("Equal", 10, 2),
    Sketcher.Constraint("Diameter", 6, 11.0),
    Sketcher.Constraint("Radius", 1, 3.0),
    Sketcher.Constraint("DistanceX", 0, 1, 0, 2, 27.0),
    Sketcher.Constraint("DistanceX", 1, 3, -1, 1, 73.0),
    Sketcher.Constraint("DistanceY", -1, 1, 1, 3, 73.0),
    Sketcher.Constraint("DistanceX", 6, 3, -1, 1, 85.0),
    Sketcher.Constraint("DistanceY", -1, 1, 6, 3, 85.0),
])
pocket5 = doc.addObject("PartDesign::Pocket", "Pocket004")
body.addObject(pocket5)
pocket5.Profile = sketch11
pocket5.Length = 30.5
pocket5.Reversed = True
body2 = doc.addObject("PartDesign::Body", "Body001")

sketch12 = doc.addObject("Sketcher::SketchObject", "Sketch011")
body2.addObject(sketch12)
sketch12.AttachmentSupport = (doc.getObject("XY_Plane001"), [""])
sketch12.MapMode = "FlatFace"
sketch12.addGeometry(Part.Circle(V(0, 77.5, 0), V(0, 0, 1), 3), False)
sketch12.addConstraint([
    Sketcher.Constraint("PointOnObject", 0, 3, -2),
    Sketcher.Constraint("Diameter", 0, 6.0),
    Sketcher.Constraint("DistanceY", -1, 1, 0, 3, 77.5),
])
pad7 = doc.addObject("PartDesign::Pad", "Pad006")
body2.addObject(pad7)
pad7.Profile = sketch12
pad7.Length = 54.5
body3 = doc.addObject("PartDesign::Body", "Body002")

sketch13 = doc.addObject("Sketcher::SketchObject", "Sketch012")
body3.addObject(sketch13)
sketch13.AttachmentSupport = (doc.getObject("XY_Plane002"), [""])
sketch13.MapMode = "FlatFace"
sketch13.addGeometry(Part.Circle(V(0, -77.5, 0), V(0, 0, 1), 3), False)
sketch13.addConstraint([
    Sketcher.Constraint("PointOnObject", 0, 3, -2),
    Sketcher.Constraint("Diameter", 0, 6.0),
    Sketcher.Constraint("DistanceY", 0, 3, -1, 1, 77.5),
])
pad8 = doc.addObject("PartDesign::Pad", "Pad007")
body3.addObject(pad8)
pad8.Profile = sketch13
pad8.Length = 54.5

doc.recompute()
